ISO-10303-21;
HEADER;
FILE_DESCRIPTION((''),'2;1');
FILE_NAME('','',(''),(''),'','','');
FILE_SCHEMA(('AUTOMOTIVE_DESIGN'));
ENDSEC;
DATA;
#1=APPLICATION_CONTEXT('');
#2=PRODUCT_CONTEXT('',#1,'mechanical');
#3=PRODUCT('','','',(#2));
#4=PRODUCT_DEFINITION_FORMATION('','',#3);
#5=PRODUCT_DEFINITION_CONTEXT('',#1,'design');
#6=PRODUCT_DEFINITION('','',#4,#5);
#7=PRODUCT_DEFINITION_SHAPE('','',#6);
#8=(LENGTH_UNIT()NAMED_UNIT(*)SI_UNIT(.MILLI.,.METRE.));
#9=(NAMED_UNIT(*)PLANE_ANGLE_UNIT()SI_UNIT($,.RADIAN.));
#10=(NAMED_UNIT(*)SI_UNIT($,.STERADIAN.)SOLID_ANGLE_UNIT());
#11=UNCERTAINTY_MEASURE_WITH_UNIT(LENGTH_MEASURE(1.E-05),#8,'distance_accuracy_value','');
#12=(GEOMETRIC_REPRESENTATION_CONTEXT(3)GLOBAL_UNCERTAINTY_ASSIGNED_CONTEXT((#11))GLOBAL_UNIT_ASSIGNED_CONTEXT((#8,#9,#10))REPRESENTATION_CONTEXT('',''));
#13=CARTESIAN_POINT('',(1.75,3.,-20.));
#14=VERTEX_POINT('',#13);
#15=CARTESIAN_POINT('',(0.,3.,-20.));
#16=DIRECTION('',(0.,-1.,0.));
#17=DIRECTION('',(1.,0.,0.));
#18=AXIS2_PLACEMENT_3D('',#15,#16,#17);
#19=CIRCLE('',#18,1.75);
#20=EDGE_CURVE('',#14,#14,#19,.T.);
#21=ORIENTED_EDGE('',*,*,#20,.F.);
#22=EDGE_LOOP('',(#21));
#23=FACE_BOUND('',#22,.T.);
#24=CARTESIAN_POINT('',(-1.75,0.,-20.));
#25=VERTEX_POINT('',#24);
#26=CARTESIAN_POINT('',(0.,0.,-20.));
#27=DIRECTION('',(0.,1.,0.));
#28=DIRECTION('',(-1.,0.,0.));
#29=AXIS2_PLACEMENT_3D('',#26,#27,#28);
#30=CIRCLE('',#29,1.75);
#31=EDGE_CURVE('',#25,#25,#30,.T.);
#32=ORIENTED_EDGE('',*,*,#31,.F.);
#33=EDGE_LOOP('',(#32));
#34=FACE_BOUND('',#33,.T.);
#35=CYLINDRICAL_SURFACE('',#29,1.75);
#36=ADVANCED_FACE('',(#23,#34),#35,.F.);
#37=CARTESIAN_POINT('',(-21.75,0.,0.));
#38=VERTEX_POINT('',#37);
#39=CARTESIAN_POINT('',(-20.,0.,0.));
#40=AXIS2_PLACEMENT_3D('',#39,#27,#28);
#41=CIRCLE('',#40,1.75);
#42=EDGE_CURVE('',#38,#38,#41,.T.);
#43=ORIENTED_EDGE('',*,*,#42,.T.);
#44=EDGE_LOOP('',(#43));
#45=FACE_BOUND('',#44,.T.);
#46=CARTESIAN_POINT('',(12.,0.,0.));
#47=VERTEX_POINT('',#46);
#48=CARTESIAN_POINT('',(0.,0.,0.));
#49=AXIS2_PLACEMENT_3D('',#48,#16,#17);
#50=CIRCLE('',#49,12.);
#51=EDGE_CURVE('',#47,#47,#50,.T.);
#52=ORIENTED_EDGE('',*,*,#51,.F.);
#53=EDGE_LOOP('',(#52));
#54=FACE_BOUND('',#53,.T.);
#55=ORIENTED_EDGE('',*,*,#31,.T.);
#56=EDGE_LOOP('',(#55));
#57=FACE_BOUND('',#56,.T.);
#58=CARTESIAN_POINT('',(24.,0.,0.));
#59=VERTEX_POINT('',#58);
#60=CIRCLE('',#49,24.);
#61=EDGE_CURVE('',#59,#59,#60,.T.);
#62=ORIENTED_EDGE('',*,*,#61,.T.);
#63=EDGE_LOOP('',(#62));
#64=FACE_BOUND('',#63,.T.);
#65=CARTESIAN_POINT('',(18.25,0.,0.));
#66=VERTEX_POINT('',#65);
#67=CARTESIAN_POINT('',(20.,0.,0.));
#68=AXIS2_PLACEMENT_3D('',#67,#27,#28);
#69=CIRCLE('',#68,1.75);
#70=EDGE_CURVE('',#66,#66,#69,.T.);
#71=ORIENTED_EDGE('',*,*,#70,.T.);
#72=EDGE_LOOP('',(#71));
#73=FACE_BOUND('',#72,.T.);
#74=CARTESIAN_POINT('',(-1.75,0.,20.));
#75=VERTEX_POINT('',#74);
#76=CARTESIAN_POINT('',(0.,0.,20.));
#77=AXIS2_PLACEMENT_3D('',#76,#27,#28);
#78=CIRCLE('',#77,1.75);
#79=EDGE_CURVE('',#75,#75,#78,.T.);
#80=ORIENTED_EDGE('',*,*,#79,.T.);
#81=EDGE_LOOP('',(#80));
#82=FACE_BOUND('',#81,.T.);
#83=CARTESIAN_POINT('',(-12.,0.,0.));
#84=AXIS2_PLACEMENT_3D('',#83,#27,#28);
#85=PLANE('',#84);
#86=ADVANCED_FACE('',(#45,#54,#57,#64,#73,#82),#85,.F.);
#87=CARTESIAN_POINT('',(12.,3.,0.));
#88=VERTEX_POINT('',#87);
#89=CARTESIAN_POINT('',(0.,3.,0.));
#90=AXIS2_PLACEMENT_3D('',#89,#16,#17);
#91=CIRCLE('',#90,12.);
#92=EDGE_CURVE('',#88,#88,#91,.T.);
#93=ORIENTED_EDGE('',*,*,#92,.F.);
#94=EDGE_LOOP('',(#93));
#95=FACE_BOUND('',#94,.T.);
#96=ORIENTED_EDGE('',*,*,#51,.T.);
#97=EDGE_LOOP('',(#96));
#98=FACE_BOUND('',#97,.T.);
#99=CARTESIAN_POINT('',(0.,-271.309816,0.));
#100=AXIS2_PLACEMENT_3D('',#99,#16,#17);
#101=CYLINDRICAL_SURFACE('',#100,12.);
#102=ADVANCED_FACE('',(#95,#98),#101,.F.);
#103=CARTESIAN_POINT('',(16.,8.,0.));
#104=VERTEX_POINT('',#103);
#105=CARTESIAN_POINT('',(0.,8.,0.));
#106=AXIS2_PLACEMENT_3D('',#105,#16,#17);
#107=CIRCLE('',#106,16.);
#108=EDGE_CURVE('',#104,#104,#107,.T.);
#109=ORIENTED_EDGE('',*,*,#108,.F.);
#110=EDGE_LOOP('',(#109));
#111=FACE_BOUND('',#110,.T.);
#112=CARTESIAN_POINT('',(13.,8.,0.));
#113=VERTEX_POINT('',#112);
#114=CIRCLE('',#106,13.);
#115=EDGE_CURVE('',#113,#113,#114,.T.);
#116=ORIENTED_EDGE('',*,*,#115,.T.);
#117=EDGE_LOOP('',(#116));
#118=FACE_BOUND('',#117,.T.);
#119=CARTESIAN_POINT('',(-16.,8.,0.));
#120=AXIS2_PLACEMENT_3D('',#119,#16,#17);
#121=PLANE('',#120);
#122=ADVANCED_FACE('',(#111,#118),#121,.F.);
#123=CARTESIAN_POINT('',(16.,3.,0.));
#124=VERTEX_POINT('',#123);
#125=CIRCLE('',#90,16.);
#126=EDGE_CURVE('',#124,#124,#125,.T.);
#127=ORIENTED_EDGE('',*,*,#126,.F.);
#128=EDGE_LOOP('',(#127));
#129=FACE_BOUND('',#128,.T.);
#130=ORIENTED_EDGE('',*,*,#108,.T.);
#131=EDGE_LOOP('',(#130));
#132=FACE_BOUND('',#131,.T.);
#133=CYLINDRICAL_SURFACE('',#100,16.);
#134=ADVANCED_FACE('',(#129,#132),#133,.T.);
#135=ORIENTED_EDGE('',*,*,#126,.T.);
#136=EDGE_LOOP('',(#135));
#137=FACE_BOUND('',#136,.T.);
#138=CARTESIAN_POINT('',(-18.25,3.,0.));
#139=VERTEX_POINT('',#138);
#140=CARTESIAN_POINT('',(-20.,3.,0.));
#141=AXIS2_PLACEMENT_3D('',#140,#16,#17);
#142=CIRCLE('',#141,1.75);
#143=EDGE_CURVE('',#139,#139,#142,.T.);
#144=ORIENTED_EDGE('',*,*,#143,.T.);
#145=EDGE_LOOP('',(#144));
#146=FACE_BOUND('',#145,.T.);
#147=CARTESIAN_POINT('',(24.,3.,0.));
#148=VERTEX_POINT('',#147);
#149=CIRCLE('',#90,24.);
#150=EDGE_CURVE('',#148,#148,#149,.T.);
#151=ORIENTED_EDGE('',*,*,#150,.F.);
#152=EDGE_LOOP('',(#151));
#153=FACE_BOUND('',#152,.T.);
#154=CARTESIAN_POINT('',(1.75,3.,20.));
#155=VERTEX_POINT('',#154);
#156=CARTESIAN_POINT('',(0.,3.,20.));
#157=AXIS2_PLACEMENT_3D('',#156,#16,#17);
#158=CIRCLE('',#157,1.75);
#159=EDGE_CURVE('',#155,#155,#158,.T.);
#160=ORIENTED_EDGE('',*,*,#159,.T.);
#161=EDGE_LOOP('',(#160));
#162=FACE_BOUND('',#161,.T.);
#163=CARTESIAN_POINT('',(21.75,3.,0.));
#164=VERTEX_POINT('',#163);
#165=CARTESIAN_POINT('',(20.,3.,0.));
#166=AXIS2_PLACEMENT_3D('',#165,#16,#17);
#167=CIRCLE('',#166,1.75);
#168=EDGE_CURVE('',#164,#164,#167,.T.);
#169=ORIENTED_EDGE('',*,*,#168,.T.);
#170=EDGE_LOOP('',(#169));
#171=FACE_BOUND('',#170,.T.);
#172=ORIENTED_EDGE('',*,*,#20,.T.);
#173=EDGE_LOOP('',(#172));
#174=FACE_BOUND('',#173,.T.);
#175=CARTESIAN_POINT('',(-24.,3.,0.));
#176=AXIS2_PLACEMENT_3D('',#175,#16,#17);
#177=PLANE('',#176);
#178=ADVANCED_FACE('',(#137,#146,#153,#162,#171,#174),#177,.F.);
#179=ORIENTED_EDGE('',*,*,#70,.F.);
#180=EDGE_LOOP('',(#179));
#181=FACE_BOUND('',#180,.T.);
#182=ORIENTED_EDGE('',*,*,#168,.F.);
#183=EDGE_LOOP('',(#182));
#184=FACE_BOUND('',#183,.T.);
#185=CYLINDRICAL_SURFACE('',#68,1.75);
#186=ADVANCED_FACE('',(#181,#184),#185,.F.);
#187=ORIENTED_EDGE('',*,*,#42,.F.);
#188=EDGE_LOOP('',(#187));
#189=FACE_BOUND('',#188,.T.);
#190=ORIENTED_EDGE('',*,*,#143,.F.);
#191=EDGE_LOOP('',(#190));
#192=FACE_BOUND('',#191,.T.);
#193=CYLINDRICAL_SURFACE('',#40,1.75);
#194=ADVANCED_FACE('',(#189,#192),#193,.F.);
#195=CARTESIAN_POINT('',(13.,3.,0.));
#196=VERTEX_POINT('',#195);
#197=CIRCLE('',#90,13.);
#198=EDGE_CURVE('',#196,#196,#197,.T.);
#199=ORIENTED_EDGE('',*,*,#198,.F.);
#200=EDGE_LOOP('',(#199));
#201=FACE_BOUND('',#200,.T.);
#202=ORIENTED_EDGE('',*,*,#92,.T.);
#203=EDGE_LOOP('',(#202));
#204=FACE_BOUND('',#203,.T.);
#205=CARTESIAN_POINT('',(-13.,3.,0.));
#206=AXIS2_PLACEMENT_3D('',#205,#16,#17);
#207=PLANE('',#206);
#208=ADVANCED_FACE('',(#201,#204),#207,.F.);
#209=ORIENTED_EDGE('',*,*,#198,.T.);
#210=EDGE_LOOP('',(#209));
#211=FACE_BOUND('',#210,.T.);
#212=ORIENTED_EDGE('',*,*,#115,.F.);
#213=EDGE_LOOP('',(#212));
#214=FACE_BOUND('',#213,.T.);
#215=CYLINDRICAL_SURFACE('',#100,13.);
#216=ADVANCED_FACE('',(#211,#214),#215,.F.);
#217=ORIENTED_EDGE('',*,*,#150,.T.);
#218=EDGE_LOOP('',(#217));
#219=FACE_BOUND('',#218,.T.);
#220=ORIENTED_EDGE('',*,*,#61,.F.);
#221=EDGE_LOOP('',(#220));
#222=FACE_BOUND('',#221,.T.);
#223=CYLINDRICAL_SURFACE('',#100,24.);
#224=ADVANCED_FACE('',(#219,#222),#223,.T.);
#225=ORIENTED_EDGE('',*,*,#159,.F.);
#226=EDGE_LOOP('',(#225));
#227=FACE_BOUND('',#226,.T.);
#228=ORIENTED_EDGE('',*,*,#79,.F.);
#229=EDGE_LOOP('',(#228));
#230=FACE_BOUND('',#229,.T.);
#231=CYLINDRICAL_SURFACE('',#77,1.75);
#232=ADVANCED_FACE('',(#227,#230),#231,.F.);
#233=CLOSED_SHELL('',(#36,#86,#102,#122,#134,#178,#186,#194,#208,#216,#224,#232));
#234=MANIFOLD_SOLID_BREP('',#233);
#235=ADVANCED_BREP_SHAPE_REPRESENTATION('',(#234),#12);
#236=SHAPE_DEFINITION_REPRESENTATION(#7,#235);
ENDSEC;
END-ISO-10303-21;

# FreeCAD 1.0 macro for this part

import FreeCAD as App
import Part
import Sketcher
from FreeCAD import Vector


def add_polygon(sketch, points):
    """Adds a closed chain of lines whose ends are joined by coincident constraints."""
    first, n = sketch.GeometryCount, len(points)
    for a, b in zip(points, points[1:] + points[:1]):
        sketch.addGeometry(Part.LineSegment(App.Vector(*a, 0), App.Vector(*b, 0)), False)
    for i in range(n):
        sketch.addConstraint(Sketcher.Constraint("Coincident", first + i, 2, first + (i + 1) % n, 1))

doc = App.newDocument("Part")
body = doc.addObject("PartDesign::Body", "Body")

# Sketch on XY plane
sketch1 = body.newObject("Sketcher::SketchObject", "Sketch")
sketch1.AttachmentSupport = (doc.getObject("XY_Plane"), [""])
sketch1.MapMode = "FlatFace"
add_polygon(sketch1, [(-24, 0), (-12, 0), (-12, 3), (-13, 3), (-13, 8), (-16, 8), (-16, 3), (-24, 3)])  # lines 0-7
sketch1.addConstraint([
    Sketcher.Constraint("Horizontal", 0),
    Sketcher.Constraint("Vertical", 1),
    Sketcher.Constraint("Horizontal", 2),
    Sketcher.Constraint("Vertical", 3),
    Sketcher.Constraint("Horizontal", 4),
    Sketcher.Constraint("Vertical", 5),
    Sketcher.Constraint("Horizontal", 6),
    Sketcher.Constraint("Vertical", 7),
    Sketcher.Constraint("PointOnObject", 0, 2, -1),
    Sketcher.Constraint("Horizontal", 2, 2, 5, 2),
    Sketcher.Constraint("Equal", 4, 1),
    Sketcher.Constraint("DistanceX", 0, 1, 0, 2, 12.0),
    Sketcher.Constraint("DistanceX", 2, 2, 2, 1, 1.0),
    Sketcher.Constraint("DistanceX", 4, 2, 4, 1, 3.0),
    Sketcher.Constraint("DistanceY", 3, 1, 3, 2, 5.0),
    Sketcher.Constraint("DistanceX", 0, 2, -1, 1, 12.0),
])
revolution = body.newObject("PartDesign::Revolution", "Revolution")
revolution.Profile = sketch1
revolution.ReferenceAxis = (sketch1, ["V_Axis"])
revolution.Angle = 360

# Sketch on XZ plane
sketch2 = body.newObject("Sketcher::SketchObject", "Sketch001")
sketch2.AttachmentSupport = (doc.getObject("XZ_Plane"), [""])
sketch2.MapMode = "FlatFace"
sketch2.AttachmentOffset = App.Placement(Vector(0, 0, -3), App.Rotation())
sketch2.addGeometry([
    Part.Circle(Vector(0, -20, 0), Vector(0, 0, 1), 1.75),
    Part.Circle(Vector(20, 0, 0), Vector(0, 0, 1), 1.75),
    Part.Circle(Vector(0, 20, 0), Vector(0, 0, 1), 1.75),
    Part.Circle(Vector(-20, 0, 0), Vector(0, 0, 1), 1.75),
], False)
sketch2.addConstraint([
    Sketcher.Constraint("Equal", 0, 1),
    Sketcher.Constraint("Equal", 1, 2),
    Sketcher.Constraint("Equal", 2, 3),
    Sketcher.Constraint("Symmetric", 0, 3, 2, 3, -1, 1),
    Sketcher.Constraint("Symmetric", 1, 3, 3, 3, -1, 1),
    Sketcher.Constraint("PointOnObject", 0, 3, -2),
    Sketcher.Constraint("PointOnObject", 1, 3, -1),
    Sketcher.Constraint("Diameter", 0, 3.5),
    Sketcher.Constraint("DistanceY", 0, 3, -1, 1, 20.0),
    Sketcher.Constraint("DistanceX", -1, 1, 1, 3, 20.0),
])
pocket1 = body.newObject("PartDesign::Pocket", "Pocket")
pocket1.Profile = sketch2
pocket1.Type = "ThroughAll"
pocket1.Midplane = True

doc.recompute()
